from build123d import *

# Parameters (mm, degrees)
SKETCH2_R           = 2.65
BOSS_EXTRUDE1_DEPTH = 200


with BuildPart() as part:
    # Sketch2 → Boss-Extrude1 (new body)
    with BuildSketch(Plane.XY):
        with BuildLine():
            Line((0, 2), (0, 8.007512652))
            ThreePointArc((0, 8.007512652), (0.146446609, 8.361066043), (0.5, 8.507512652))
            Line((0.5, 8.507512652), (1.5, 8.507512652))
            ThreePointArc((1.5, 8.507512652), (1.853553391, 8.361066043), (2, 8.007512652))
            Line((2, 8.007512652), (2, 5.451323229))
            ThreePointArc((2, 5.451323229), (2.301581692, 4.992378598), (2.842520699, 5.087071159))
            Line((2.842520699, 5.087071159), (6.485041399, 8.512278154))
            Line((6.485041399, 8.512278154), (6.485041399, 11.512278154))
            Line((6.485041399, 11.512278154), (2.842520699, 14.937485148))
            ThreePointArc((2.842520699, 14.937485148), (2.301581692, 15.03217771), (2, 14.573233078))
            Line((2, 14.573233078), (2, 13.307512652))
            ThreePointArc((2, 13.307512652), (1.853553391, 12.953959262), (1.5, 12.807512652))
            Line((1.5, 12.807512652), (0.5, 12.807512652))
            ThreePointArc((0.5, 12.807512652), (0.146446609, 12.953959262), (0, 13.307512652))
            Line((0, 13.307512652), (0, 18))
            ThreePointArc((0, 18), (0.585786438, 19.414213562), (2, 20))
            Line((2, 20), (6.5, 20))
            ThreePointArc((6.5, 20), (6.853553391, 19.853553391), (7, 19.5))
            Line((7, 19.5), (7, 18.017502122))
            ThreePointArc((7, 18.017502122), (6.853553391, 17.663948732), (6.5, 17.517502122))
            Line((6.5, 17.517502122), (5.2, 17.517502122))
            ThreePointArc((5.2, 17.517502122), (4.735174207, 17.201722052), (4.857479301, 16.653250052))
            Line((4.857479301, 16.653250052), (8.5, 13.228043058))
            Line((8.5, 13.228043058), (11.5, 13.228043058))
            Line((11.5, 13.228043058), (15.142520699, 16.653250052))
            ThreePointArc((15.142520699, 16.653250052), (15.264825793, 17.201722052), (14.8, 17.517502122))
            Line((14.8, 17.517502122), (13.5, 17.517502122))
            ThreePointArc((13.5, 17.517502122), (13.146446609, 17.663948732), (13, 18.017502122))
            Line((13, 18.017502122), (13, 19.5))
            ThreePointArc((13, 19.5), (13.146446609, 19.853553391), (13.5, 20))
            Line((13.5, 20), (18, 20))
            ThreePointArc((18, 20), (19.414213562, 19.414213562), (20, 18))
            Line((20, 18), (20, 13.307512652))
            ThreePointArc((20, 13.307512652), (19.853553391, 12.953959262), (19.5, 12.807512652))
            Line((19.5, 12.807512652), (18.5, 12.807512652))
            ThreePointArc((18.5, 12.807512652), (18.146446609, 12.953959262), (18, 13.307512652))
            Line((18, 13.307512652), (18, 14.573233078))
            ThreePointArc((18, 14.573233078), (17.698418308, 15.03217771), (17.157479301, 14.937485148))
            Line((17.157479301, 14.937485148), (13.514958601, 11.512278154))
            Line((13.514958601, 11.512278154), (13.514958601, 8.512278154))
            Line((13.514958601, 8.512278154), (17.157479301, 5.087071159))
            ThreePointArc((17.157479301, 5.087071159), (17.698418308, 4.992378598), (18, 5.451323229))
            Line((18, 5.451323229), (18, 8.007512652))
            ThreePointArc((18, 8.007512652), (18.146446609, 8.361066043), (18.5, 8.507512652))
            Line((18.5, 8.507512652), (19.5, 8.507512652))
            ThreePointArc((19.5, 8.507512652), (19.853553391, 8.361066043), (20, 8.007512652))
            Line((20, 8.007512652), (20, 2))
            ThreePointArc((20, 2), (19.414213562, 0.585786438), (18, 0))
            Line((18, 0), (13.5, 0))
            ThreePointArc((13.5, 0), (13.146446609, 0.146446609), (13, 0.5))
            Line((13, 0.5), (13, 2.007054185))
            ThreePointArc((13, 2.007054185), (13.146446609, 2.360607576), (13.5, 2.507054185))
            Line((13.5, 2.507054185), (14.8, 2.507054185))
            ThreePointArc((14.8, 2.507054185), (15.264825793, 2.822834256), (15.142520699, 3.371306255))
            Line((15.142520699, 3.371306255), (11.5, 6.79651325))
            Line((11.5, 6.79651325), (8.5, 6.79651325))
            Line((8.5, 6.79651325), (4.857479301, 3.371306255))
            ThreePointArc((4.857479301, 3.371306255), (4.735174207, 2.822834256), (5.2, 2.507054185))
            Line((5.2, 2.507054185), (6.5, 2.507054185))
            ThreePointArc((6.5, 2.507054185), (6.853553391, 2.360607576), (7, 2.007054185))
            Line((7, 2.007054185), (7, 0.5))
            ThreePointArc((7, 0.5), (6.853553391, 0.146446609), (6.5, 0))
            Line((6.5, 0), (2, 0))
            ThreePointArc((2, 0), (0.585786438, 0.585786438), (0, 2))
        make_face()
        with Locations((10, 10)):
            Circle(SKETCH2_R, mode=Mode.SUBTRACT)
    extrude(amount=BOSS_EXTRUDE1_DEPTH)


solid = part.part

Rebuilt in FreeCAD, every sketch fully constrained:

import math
import FreeCAD as App
import Part
import Sketcher
from FreeCAD import Vector

doc = App.newDocument("Part")
params = doc.addObject("Spreadsheet::Sheet", "Params")
for row, (alias, value) in enumerate([
    ("sketch1_radius", "2 mm"),
    ("sketch1_diameter", "5.3 mm"),
    ("sketch1_radius2", "0.5 mm"),
    ("sketch1_width", "3 mm"),
    ("sketch1_length", "5 mm"),
    ("pad1_length", "200 mm"),
], start=1):
    params.set(f"A{row}", alias)
    params.set(f"B{row}", "=" + value)
    params.setAlias(f"B{row}", alias)

body = doc.addObject("PartDesign::Body", "Body")

sketch1 = doc.addObject("Sketcher::SketchObject", "Sketch")
body.addObject(sketch1)
sketch1.AttachmentSupport = (doc.XY_Plane, [""])
sketch1.MapMode = "FlatFace"
sketch1.addGeometry(Part.LineSegment(Vector(0, 8.007513, 0), Vector(0, 2, 0)), False)
sketch1.addGeometry(Part.ArcOfCircle(Part.Circle(Vector(2, 2, 0), Vector(0, 0, 1), 2), math.radians(-180), math.radians(-90)), False)
sketch1.addGeometry(Part.LineSegment(Vector(2, 0, 0), Vector(6.5, 0, 0)), False)
sketch1.addGeometry(Part.ArcOfCircle(Part.Circle(Vector(6.5, 0.5, 0), Vector(0, 0, 1), 0.5), math.radians(-90), math.radians(0)), False)
sketch1.addGeometry(Part.LineSegment(Vector(7, 0.5, 0), Vector(7, 2.007054, 0)), False)
sketch1.addGeometry(Part.ArcOfCircle(Part.Circle(Vector(6.5, 2.007054, 0), Vector(0, 0, 1), 0.5), math.radians(0), math.radians(90)), False)
sketch1.addGeometry(Part.LineSegment(Vector(6.5, 2.507054, 0), Vector(5.2, 2.507054, 0)), False)
sketch1.addGeometry(Part.ArcOfCircle(Part.Circle(Vector(5.2, 3.007054, 0), Vector(0, 0, 1), 0.5), math.radians(133.238863), math.radians(270)), False)
sketch1.addGeometry(Part.LineSegment(Vector(4.857479, 3.371306, 0), Vector(8.5, 6.796513, 0)), False)
sketch1.addGeometry(Part.LineSegment(Vector(8.5, 6.796513, 0), Vector(11.5, 6.796513, 0)), False)
sketch1.addGeometry(Part.LineSegment(Vector(11.5, 6.796513, 0), Vector(15.142521, 3.371306, 0)), False)
sketch1.addGeometry(Part.ArcOfCircle(Part.Circle(Vector(14.8, 3.007054, 0), Vector(0, 0, 1), 0.5), math.radians(-90), math.radians(46.761137)), False)
sketch1.addGeometry(Part.LineSegment(Vector(14.8, 2.507054, 0), Vector(13.5, 2.507054, 0)), False)
sketch1.addGeometry(Part.ArcOfCircle(Part.Circle(Vector(13.5, 2.007054, 0), Vector(0, 0, 1), 0.5), math.radians(90), math.radians(180)), False)
sketch1.addGeometry(Part.LineSegment(Vector(13, 2.007054, 0), Vector(13, 0.5, 0)), False)
sketch1.addGeometry(Part.ArcOfCircle(Part.Circle(Vector(13.5, 0.5, 0), Vector(0, 0, 1), 0.5), math.radians(180), math.radians(270)), False)
sketch1.addGeometry(Part.LineSegment(Vector(13.5, 0, 0), Vector(18, 0, 0)), False)
sketch1.addGeometry(Part.ArcOfCircle(Part.Circle(Vector(18, 2, 0), Vector(0, 0, 1), 2), math.radians(-90), math.radians(0)), False)
sketch1.addGeometry(Part.LineSegment(Vector(20, 2, 0), Vector(20, 8.007513, 0)), False)
sketch1.addGeometry(Part.ArcOfCircle(Part.Circle(Vector(19.5, 8.007513, 0), Vector(0, 0, 1), 0.5), math.radians(0), math.radians(90)), False)
sketch1.addGeometry(Part.LineSegment(Vector(19.5, 8.507513, 0), Vector(18.5, 8.507513, 0)), False)
sketch1.addGeometry(Part.ArcOfCircle(Part.Circle(Vector(18.5, 8.007513, 0), Vector(0, 0, 1), 0.5), math.radians(90), math.radians(180)), False)
sketch1.addGeometry(Part.LineSegment(Vector(18, 8.007513, 0), Vector(18, 5.451323, 0)), False)
sketch1.addGeometry(Part.ArcOfCircle(Part.Circle(Vector(17.5, 5.451323, 0), Vector(0, 0, 1), 0.5), math.radians(-133.238863), math.radians(0)), False)
sketch1.addGeometry(Part.LineSegment(Vector(17.157479, 5.087071, 0), Vector(13.514959, 8.512278, 0)), False)
sketch1.addGeometry(Part.LineSegment(Vector(13.514959, 8.512278, 0), Vector(13.514959, 11.512278, 0)), False)
sketch1.addGeometry(Part.LineSegment(Vector(13.514959, 11.512278, 0), Vector(17.157479, 14.937485, 0)), False)
sketch1.addGeometry(Part.ArcOfCircle(Part.Circle(Vector(17.5, 14.573233, 0), Vector(0, 0, 1), 0.5), math.radians(0), math.radians(133.238863)), False)
sketch1.addGeometry(Part.LineSegment(Vector(18, 14.573233, 0), Vector(18, 13.307513, 0)), False)
sketch1.addGeometry(Part.ArcOfCircle(Part.Circle(Vector(18.5, 13.307513, 0), Vector(0, 0, 1), 0.5), math.radians(180), math.radians(270)), False)
sketch1.addGeometry(Part.LineSegment(Vector(18.5, 12.807513, 0), Vector(19.5, 12.807513, 0)), False)
sketch1.addGeometry(Part.ArcOfCircle(Part.Circle(Vector(19.5, 13.307513, 0), Vector(0, 0, 1), 0.5), math.radians(-90), math.radians(0)), False)
sketch1.addGeometry(Part.LineSegment(Vector(20, 13.307513, 0), Vector(20, 18, 0)), False)
sketch1.addGeometry(Part.ArcOfCircle(Part.Circle(Vector(18, 18, 0), Vector(0, 0, 1), 2), math.radians(0), math.radians(90)), False)
sketch1.addGeometry(Part.LineSegment(Vector(18, 20, 0), Vector(13.5, 20, 0)), False)
sketch1.addGeometry(Part.ArcOfCircle(Part.Circle(Vector(13.5, 19.5, 0), Vector(0, 0, 1), 0.5), math.radians(90), math.radians(180)), False)
sketch1.addGeometry(Part.LineSegment(Vector(13, 19.5, 0), Vector(13, 18.017502, 0)), False)
sketch1.addGeometry(Part.ArcOfCircle(Part.Circle(Vector(13.5, 18.017502, 0), Vector(0, 0, 1), 0.5), math.radians(180), math.radians(270)), False)
sketch1.addGeometry(Part.LineSegment(Vector(13.5, 17.517502, 0), Vector(14.8, 17.517502, 0)), False)
sketch1.addGeometry(Part.ArcOfCircle(Part.Circle(Vector(14.8, 17.017502, 0), Vector(0, 0, 1), 0.5), math.radians(-46.761137), math.radians(90)), False)
sketch1.addGeometry(Part.LineSegment(Vector(15.142521, 16.65325, 0), Vector(11.5, 13.228043, 0)), False)
sketch1.addGeometry(Part.LineSegment(Vector(11.5, 13.228043, 0), Vector(8.5, 13.228043, 0)), False)
sketch1.addGeometry(Part.LineSegment(Vector(8.5, 13.228043, 0), Vector(4.857479, 16.65325, 0)), False)
sketch1.addGeometry(Part.ArcOfCircle(Part.Circle(Vector(5.2, 17.017502, 0), Vector(0, 0, 1), 0.5), math.radians(90), math.radians(226.761137)), False)
sketch1.addGeometry(Part.LineSegment(Vector(5.2, 17.517502, 0), Vector(6.5, 17.517502, 0)), False)
sketch1.addGeometry(Part.ArcOfCircle(Part.Circle(Vector(6.5, 18.017502, 0), Vector(0, 0, 1), 0.5), math.radians(-90), math.radians(0)), False)
sketch1.addGeometry(Part.LineSegment(Vector(7, 18.017502, 0), Vector(7, 19.5, 0)), False)
sketch1.addGeometry(Part.ArcOfCircle(Part.Circle(Vector(6.5, 19.5, 0), Vector(0, 0, 1), 0.5), math.radians(0), math.radians(90)), False)
sketch1.addGeometry(Part.LineSegment(Vector(6.5, 20, 0), Vector(2, 20, 0)), False)
sketch1.addGeometry(Part.ArcOfCircle(Part.Circle(Vector(2, 18, 0), Vector(0, 0, 1), 2), math.radians(90), math.radians(180)), False)
sketch1.addGeometry(Part.LineSegment(Vector(0, 18, 0), Vector(0, 13.307513, 0)), False)
sketch1.addGeometry(Part.ArcOfCircle(Part.Circle(Vector(0.5, 13.307513, 0), Vector(0, 0, 1), 0.5), math.radians(180), math.radians(270)), False)
sketch1.addGeometry(Part.LineSegment(Vector(0.5, 12.807513, 0), Vector(1.5, 12.807513, 0)), False)
sketch1.addGeometry(Part.ArcOfCircle(Part.Circle(Vector(1.5, 13.307513, 0), Vector(0, 0, 1), 0.5), math.radians(-90), math.radians(0)), False)
sketch1.addGeometry(Part.LineSegment(Vector(2, 13.307513, 0), Vector(2, 14.573233, 0)), False)
sketch1.addGeometry(Part.ArcOfCircle(Part.Circle(Vector(2.5, 14.573233, 0), Vector(0, 0, 1), 0.5), math.radians(46.761137), math.radians(180)), False)
sketch1.addGeometry(Part.LineSegment(Vector(2.842521, 14.937485, 0), Vector(6.485041, 11.512278, 0)), False)
sketch1.addGeometry(Part.LineSegment(Vector(6.485041, 11.512278, 0), Vector(6.485041, 8.512278, 0)), False)
sketch1.addGeometry(Part.LineSegment(Vector(6.485041, 8.512278, 0), Vector(2.842521, 5.087071, 0)), False)
sketch1.addGeometry(Part.ArcOfCircle(Part.Circle(Vector(2.5, 5.451323, 0), Vector(0, 0, 1), 0.5), math.radians(-180), math.radians(-46.761137)), False)
sketch1.addGeometry(Part.LineSegment(Vector(2, 5.451323, 0), Vector(2, 8.007513, 0)), False)
sketch1.addGeometry(Part.ArcOfCircle(Part.Circle(Vector(1.5, 8.007513, 0), Vector(0, 0, 1), 0.5), math.radians(0), math.radians(90)), False)
sketch1.addGeometry(Part.LineSegment(Vector(1.5, 8.507513, 0), Vector(0.5, 8.507513, 0)), False)
sketch1.addGeometry(Part.ArcOfCircle(Part.Circle(Vector(0.5, 8.007513, 0), Vector(0, 0, 1), 0.5), math.radians(90), math.radians(180)), False)
sketch1.addGeometry(Part.Circle(Vector(10, 10, 0), Vector(0, 0, 1), 2.65), False)
sketch1.addConstraint(Sketcher.Constraint("Tangent", 0, 2, 1, 1))
sketch1.addConstraint(Sketcher.Constraint("Tangent", 1, 2, 2, 1))
sketch1.addConstraint(Sketcher.Constraint("Tangent", 2, 2, 3, 1))
sketch1.addConstraint(Sketcher.Constraint("Tangent", 3, 2, 4, 1))
sketch1.addConstraint(Sketcher.Constraint("Tangent", 4, 2, 5, 1))
sketch1.addConstraint(Sketcher.Constraint("Tangent", 5, 2, 6, 1))
sketch1.addConstraint(Sketcher.Constraint("Tangent", 6, 2, 7, 2))
sketch1.addConstraint(Sketcher.Constraint("Tangent", 7, 1, 8, 1))
sketch1.addConstraint(Sketcher.Constraint("Coincident", 8, 2, 9, 1))
sketch1.addConstraint(Sketcher.Constraint("Coincident", 9, 2, 10, 1))
sketch1.addConstraint(Sketcher.Constraint("Tangent", 10, 2, 11, 2))
sketch1.addConstraint(Sketcher.Constraint("Tangent", 11, 1, 12, 1))
sketch1.addConstraint(Sketcher.Constraint("Tangent", 12, 2, 13, 1))
sketch1.addConstraint(Sketcher.Constraint("Tangent", 13, 2, 14, 1))
sketch1.addConstraint(Sketcher.Constraint("Tangent", 14, 2, 15, 1))
sketch1.addConstraint(Sketcher.Constraint("Tangent", 15, 2, 16, 1))
sketch1.addConstraint(Sketcher.Constraint("Tangent", 16, 2, 17, 1))
sketch1.addConstraint(Sketcher.Constraint("Tangent", 17, 2, 18, 1))
sketch1.addConstraint(Sketcher.Constraint("Tangent", 18, 2, 19, 1))
sketch1.addConstraint(Sketcher.Constraint("Tangent", 19, 2, 20, 1))
sketch1.addConstraint(Sketcher.Constraint("Tangent", 20, 2, 21, 1))
sketch1.addConstraint(Sketcher.Constraint("Tangent", 21, 2, 22, 1))
sketch1.addConstraint(Sketcher.Constraint("Tangent", 22, 2, 23, 2))
sketch1.addConstraint(Sketcher.Constraint("Tangent", 23, 1, 24, 1))
sketch1.addConstraint(Sketcher.Constraint("Coincident", 24, 2, 25, 1))
sketch1.addConstraint(Sketcher.Constraint("Coincident", 25, 2, 26, 1))
sketch1.addConstraint(Sketcher.Constraint("Tangent", 26, 2, 27, 2))
sketch1.addConstraint(Sketcher.Constraint("Tangent", 27, 1, 28, 1))
sketch1.addConstraint(Sketcher.Constraint("Tangent", 28, 2, 29, 1))
sketch1.addConstraint(Sketcher.Constraint("Tangent", 29, 2, 30, 1))
sketch1.addConstraint(Sketcher.Constraint("Tangent", 30, 2, 31, 1))
sketch1.addConstraint(Sketcher.Constraint("Tangent", 31, 2, 32, 1))
sketch1.addConstraint(Sketcher.Constraint("Tangent", 32, 2, 33, 1))
sketch1.addConstraint(Sketcher.Constraint("Tangent", 33, 2, 34, 1))
sketch1.addConstraint(Sketcher.Constraint("Tangent", 34, 2, 35, 1))
sketch1.addConstraint(Sketcher.Constraint("Tangent", 35, 2, 36, 1))
sketch1.addConstraint(Sketcher.Constraint("Tangent", 36, 2, 37, 1))
sketch1.addConstraint(Sketcher.Constraint("Tangent", 37, 2, 38, 1))
sketch1.addConstraint(Sketcher.Constraint("Tangent", 38, 2, 39, 2))
sketch1.addConstraint(Sketcher.Constraint("Tangent", 39, 1, 40, 1))
sketch1.addConstraint(Sketcher.Constraint("Coincident", 40, 2, 41, 1))
sketch1.addConstraint(Sketcher.Constraint("Coincident", 41, 2, 42, 1))
sketch1.addConstraint(Sketcher.Constraint("Tangent", 42, 2, 43, 2))
sketch1.addConstraint(Sketcher.Constraint("Tangent", 43, 1, 44, 1))
sketch1.addConstraint(Sketcher.Constraint("Tangent", 44, 2, 45, 1))
sketch1.addConstraint(Sketcher.Constraint("Tangent", 45, 2, 46, 1))
sketch1.addConstraint(Sketcher.Constraint("Tangent", 46, 2, 47, 1))
sketch1.addConstraint(Sketcher.Constraint("Tangent", 47, 2, 48, 1))
sketch1.addConstraint(Sketcher.Constraint("Tangent", 48, 2, 49, 1))
sketch1.addConstraint(Sketcher.Constraint("Tangent", 49, 2, 50, 1))
sketch1.addConstraint(Sketcher.Constraint("Tangent", 50, 2, 51, 1))
sketch1.addConstraint(Sketcher.Constraint("Tangent", 51, 2, 52, 1))
sketch1.addConstraint(Sketcher.Constraint("Tangent", 52, 2, 53, 1))
sketch1.addConstraint(Sketcher.Constraint("Tangent", 53, 2, 54, 1))
sketch1.addConstraint(Sketcher.Constraint("Tangent", 54, 2, 55, 2))
sketch1.addConstraint(Sketcher.Constraint("Tangent", 55, 1, 56, 1))
sketch1.addConstraint(Sketcher.Constraint("Coincident", 56, 2, 57, 1))
sketch1.addConstraint(Sketcher.Constraint("Coincident", 57, 2, 58, 1))
sketch1.addConstraint(Sketcher.Constraint("Tangent", 58, 2, 59, 2))
sketch1.addConstraint(Sketcher.Constraint("Tangent", 59, 1, 60, 1))
sketch1.addConstraint(Sketcher.Constraint("Tangent", 60, 2, 61, 1))
sketch1.addConstraint(Sketcher.Constraint("Tangent", 61, 2, 62, 1))
sketch1.addConstraint(Sketcher.Constraint("Tangent", 62, 2, 63, 1))
sketch1.addConstraint(Sketcher.Constraint("Tangent", 63, 2, 0, 1))
sketch1.addConstraint(Sketcher.Constraint("Vertical", 0))
sketch1.addConstraint(Sketcher.Constraint("Horizontal", 2))
sketch1.addConstraint(Sketcher.Constraint("Vertical", 4))
sketch1.addConstraint(Sketcher.Constraint("Horizontal", 6))
sketch1.addConstraint(Sketcher.Constraint("Horizontal", 9))
sketch1.addConstraint(Sketcher.Constraint("Horizontal", 12))
sketch1.addConstraint(Sketcher.Constraint("Vertical", 14))
sketch1.addConstraint(Sketcher.Constraint("Horizontal", 16))
sketch1.addConstraint(Sketcher.Constraint("Vertical", 18))
sketch1.addConstraint(Sketcher.Constraint("Horizontal", 20))
sketch1.addConstraint(Sketcher.Constraint("Vertical", 22))
sketch1.addConstraint(Sketcher.Constraint("Vertical", 25))
sketch1.addConstraint(Sketcher.Constraint("Vertical", 28))
sketch1.addConstraint(Sketcher.Constraint("Horizontal", 30))
sketch1.addConstraint(Sketcher.Constraint("Vertical", 32))
sketch1.addConstraint(Sketcher.Constraint("Horizontal", 34))
sketch1.addConstraint(Sketcher.Constraint("Vertical", 36))
sketch1.addConstraint(Sketcher.Constraint("Horizontal", 38))
sketch1.addConstraint(Sketcher.Constraint("Horizontal", 41))
sketch1.addConstraint(Sketcher.Constraint("Horizontal", 44))
sketch1.addConstraint(Sketcher.Constraint("Vertical", 46))
sketch1.addConstraint(Sketcher.Constraint("Horizontal", 48))
sketch1.addConstraint(Sketcher.Constraint("Vertical", 50))
sketch1.addConstraint(Sketcher.Constraint("Horizontal", 52))
sketch1.addConstraint(Sketcher.Constraint("Vertical", 54))
sketch1.addConstraint(Sketcher.Constraint("Vertical", 57))
sketch1.addConstraint(Sketcher.Constraint("Vertical", 60))
sketch1.addConstraint(Sketcher.Constraint("Horizontal", 62))
sketch1.addConstraint(Sketcher.Constraint("Equal", 3, 5))
sketch1.addConstraint(Sketcher.Constraint("Equal", 5, 7))
sketch1.addConstraint(Sketcher.Constraint("Equal", 7, 11))
sketch1.addConstraint(Sketcher.Constraint("Equal", 11, 13))
sketch1.addConstraint(Sketcher.Constraint("Equal", 13, 15))
sketch1.addConstraint(Sketcher.Constraint("Equal", 1, 17))
sketch1.addConstraint(Sketcher.Constraint("Equal", 15, 19))
sketch1.addConstraint(Sketcher.Constraint("Equal", 19, 21))
sketch1.addConstraint(Sketcher.Constraint("Equal", 21, 23))
sketch1.addConstraint(Sketcher.Constraint("Equal", 23, 27))
sketch1.addConstraint(Sketcher.Constraint("Equal", 27, 29))
sketch1.addConstraint(Sketcher.Constraint("Equal", 29, 31))
sketch1.addConstraint(Sketcher.Constraint("Equal", 17, 33))
sketch1.addConstraint(Sketcher.Constraint("Equal", 31, 35))
sketch1.addConstraint(Sketcher.Constraint("Equal", 35, 37))
sketch1.addConstraint(Sketcher.Constraint("Equal", 37, 39))
sketch1.addConstraint(Sketcher.Constraint("Equal", 39, 43))
sketch1.addConstraint(Sketcher.Constraint("Equal", 43, 45))
sketch1.addConstraint(Sketcher.Constraint("Equal", 45, 47))
sketch1.addConstraint(Sketcher.Constraint("Equal", 33, 49))
sketch1.addConstraint(Sketcher.Constraint("Equal", 47, 51))
sketch1.addConstraint(Sketcher.Constraint("Equal", 51, 53))
sketch1.addConstraint(Sketcher.Constraint("Equal", 53, 55))
sketch1.addConstraint(Sketcher.Constraint("Equal", 55, 59))
sketch1.addConstraint(Sketcher.Constraint("Equal", 59, 61))
sketch1.addConstraint(Sketcher.Constraint("Equal", 61, 63))
sketch1.addConstraint(Sketcher.Constraint("PointOnObject", 0, 2, -2))
sketch1.addConstraint(Sketcher.Constraint("PointOnObject", 1, 2, -1))
sketch1.addConstraint(Sketcher.Constraint("PointOnObject", 15, 2, -1))
sketch1.addConstraint(Sketcher.Constraint("PointOnObject", 49, 2, -2))
sketch1.addConstraint(Sketcher.Constraint("Parallel", 10, 24))
sketch1.addConstraint(Sketcher.Constraint("Parallel", 8, 26))
sketch1.addConstraint(Sketcher.Constraint("Parallel", 26, 40))
sketch1.addConstraint(Sketcher.Constraint("Parallel", 24, 42))
sketch1.addConstraint(Sketcher.Constraint("Parallel", 42, 56))
sketch1.addConstraint(Sketcher.Constraint("Parallel", 40, 58))
sketch1.addConstraint(Sketcher.Constraint("Horizontal", 7, 3, 11, 3))
sketch1.addConstraint(Sketcher.Constraint("Horizontal", 39, 3, 43, 3))
sketch1.addConstraint(Sketcher.Constraint("Horizontal", 35, 3, 47, 3))
sketch1.addConstraint(Sketcher.Constraint("Horizontal", 31, 3, 51, 3))
sketch1.addConstraint(Sketcher.Constraint("Horizontal", 27, 3, 55, 3))
sketch1.addConstraint(Sketcher.Constraint("Horizontal", 23, 3, 59, 3))
sketch1.addConstraint(Sketcher.Constraint("Horizontal", 21, 3, 61, 3))
sketch1.addConstraint(Sketcher.Constraint("Horizontal", 7, 1, 10, 2))
sketch1.addConstraint(Sketcher.Constraint("Horizontal", 25, 2, 56, 2))
sketch1.addConstraint(Sketcher.Constraint("Horizontal", 24, 2, 57, 2))
sketch1.addConstraint(Sketcher.Constraint("Vertical", 23, 3, 27, 3))
sketch1.addConstraint(Sketcher.Constraint("Vertical", 19, 3, 31, 3))
sketch1.addConstraint(Sketcher.Constraint("Vertical", 15, 3, 35, 3))
sketch1.addConstraint(Sketcher.Constraint("Vertical", 11, 3, 39, 3))
sketch1.addConstraint(Sketcher.Constraint("Vertical", 7, 3, 43, 3))
sketch1.addConstraint(Sketcher.Constraint("Vertical", 5, 3, 45, 3))
sketch1.addConstraint(Sketcher.Constraint("Vertical", 16, 2, 21, 2))
sketch1.addConstraint(Sketcher.Constraint("Vertical", 9, 2, 40, 2))
sketch1.addConstraint(Sketcher.Constraint("Vertical", 48, 2, 53, 2))
sketch1.addConstraint(Sketcher.Constraint("Equal", 6, 12))
sketch1.addConstraint(Sketcher.Constraint("Equal", 2, 16))
sketch1.addConstraint(Sketcher.Constraint("Equal", 41, 25))
sketch1.addConstraint(Sketcher.Constraint("Equal", 10, 24))
sketch1.addConstraint(Sketcher.Constraint("Radius", 1, 2.0))
sketch1.addConstraint(Sketcher.Constraint("Diameter", 64, 5.3))
sketch1.addConstraint(Sketcher.Constraint("Radius", 3, 0.5))
sketch1.addConstraint(Sketcher.Constraint("DistanceX", 9, 1, 9, 2, 3.0))
sketch1.addConstraint(Sketcher.Constraint("Distance", 8, 5.0))
sketch1.addConstraint(Sketcher.Constraint("DistanceX", 2, 1, 2, 2, 4.5))
sketch1.addConstraint(Sketcher.Constraint("DistanceX", 6, 2, 6, 1, 1.3))
sketch1.addConstraint(Sketcher.Constraint("DistanceX", -1, 1, 17, 3, 18.0))
sketch1.addConstraint(Sketcher.Constraint("DistanceY", -1, 1, 33, 3, 18.0))
sketch1.addConstraint(Sketcher.Constraint("DistanceX", -1, 1, 64, 3, 10.0))
sketch1.addConstraint(Sketcher.Constraint("DistanceY", -1, 1, 64, 3, 10.0))
sketch1.addConstraint(Sketcher.Constraint("DistanceY", 22, 2, 22, 1, 2.556189))
sketch1.addConstraint(Sketcher.Constraint("DistanceY", 28, 2, 28, 1, 1.26572))
sketch1.addConstraint(Sketcher.Constraint("DistanceY", 0, 2, 0, 1, 6.007513))
sketch1.addConstraint(Sketcher.Constraint("DistanceY", 4, 1, 4, 2, 1.507054))
sketch1.addConstraint(Sketcher.Constraint("DistanceY", 36, 2, 36, 1, 1.482498))
sketch1.setExpression("Constraints[151]", "Params.sketch1_radius")
sketch1.setExpression("Constraints[152]", "Params.sketch1_diameter")
sketch1.setExpression("Constraints[153]", "Params.sketch1_radius2")
sketch1.setExpression("Constraints[154]", "Params.sketch1_width")
sketch1.setExpression("Constraints[155]", "Params.sketch1_length")
pad1 = doc.addObject("PartDesign::Pad", "Pad")
body.addObject(pad1)
pad1.Profile = sketch1
pad1.setExpression("Length", "Params.pad1_length")

doc.recompute()
